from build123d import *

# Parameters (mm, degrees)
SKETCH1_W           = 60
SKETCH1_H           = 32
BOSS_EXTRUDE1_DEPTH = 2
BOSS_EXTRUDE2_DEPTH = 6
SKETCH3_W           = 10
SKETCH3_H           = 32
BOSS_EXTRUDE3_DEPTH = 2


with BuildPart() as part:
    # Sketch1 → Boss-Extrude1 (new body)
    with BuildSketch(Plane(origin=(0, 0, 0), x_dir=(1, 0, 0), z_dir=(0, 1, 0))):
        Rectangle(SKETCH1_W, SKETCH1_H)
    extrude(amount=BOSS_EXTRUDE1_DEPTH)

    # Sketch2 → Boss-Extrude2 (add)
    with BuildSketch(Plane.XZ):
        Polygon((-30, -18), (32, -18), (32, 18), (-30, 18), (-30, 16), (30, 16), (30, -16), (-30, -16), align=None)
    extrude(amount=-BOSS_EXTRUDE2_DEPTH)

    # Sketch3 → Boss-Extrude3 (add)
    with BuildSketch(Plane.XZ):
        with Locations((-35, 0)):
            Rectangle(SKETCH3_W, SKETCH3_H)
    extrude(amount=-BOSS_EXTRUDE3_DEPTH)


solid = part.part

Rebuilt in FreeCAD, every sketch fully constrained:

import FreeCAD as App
import Part
import Sketcher
Q = App.Units.Quantity

doc = App.newDocument("Part")
body = doc.addObject("PartDesign::Body", "Body")

sketch1 = body.newObject("Sketcher::SketchObject", "Sketch")
sketch1.AttachmentSupport = (doc.getObject("XZ_Plane"), [""])
sketch1.MapMode = "FlatFace"
sketch1.addGeometry(Part.LineSegment(App.Vector(-30, -16, 0), App.Vector(-30, 16, 0)), False)
sketch1.addGeometry(Part.LineSegment(App.Vector(-30, 16, 0), App.Vector(30, 16, 0)), False)
sketch1.addGeometry(Part.LineSegment(App.Vector(30, 16, 0), App.Vector(30, -16, 0)), False)
sketch1.addGeometry(Part.LineSegment(App.Vector(30, -16, 0), App.Vector(-30, -16, 0)), False)
sketch1.addConstraint(Sketcher.Constraint("Coincident", 0, 2, 1, 1))
sketch1.addConstraint(Sketcher.Constraint("Coincident", 1, 2, 2, 1))
sketch1.addConstraint(Sketcher.Constraint("Coincident", 2, 2, 3, 1))
sketch1.addConstraint(Sketcher.Constraint("Coincident", 3, 2, 0, 1))
sketch1.addConstraint(Sketcher.Constraint("Vertical", 0))
sketch1.addConstraint(Sketcher.Constraint("Horizontal", 1))
sketch1.addConstraint(Sketcher.Constraint("Vertical", 2))
sketch1.addConstraint(Sketcher.Constraint("Horizontal", 3))
sketch1.addConstraint(Sketcher.Constraint("Symmetric", 0, 2, 2, 2, -1, 1))
sketch1.addConstraint(Sketcher.Constraint("DistanceX", 1, 1, 1, 2, Q("60 mm")))
sketch1.addConstraint(Sketcher.Constraint("DistanceY", 0, 1, 0, 2, Q("32 mm")))
pad1 = body.newObject("PartDesign::Pad", "Pad")
pad1.Profile = sketch1
pad1.Length = 2
pad1.Reversed = True

sketch2 = body.newObject("Sketcher::SketchObject", "Sketch001")
sketch2.AttachmentSupport = (doc.getObject("XZ_Plane"), [""])
sketch2.MapMode = "FlatFace"
sketch2.addGeometry(Part.LineSegment(App.Vector(-30, -18, 0), App.Vector(32, -18, 0)), False)
sketch2.addGeometry(Part.LineSegment(App.Vector(32, -18, 0), App.Vector(32, 18, 0)), False)
sketch2.addGeometry(Part.LineSegment(App.Vector(32, 18, 0), App.Vector(-30, 18, 0)), False)
sketch2.addGeometry(Part.LineSegment(App.Vector(-30, 18, 0), App.Vector(-30, 16, 0)), False)
sketch2.addGeometry(Part.LineSegment(App.Vector(-30, 16, 0), App.Vector(30, 16, 0)), False)
sketch2.addGeometry(Part.LineSegment(App.Vector(30, 16, 0), App.Vector(30, -16, 0)), False)
sketch2.addGeometry(Part.LineSegment(App.Vector(30, -16, 0), App.Vector(-30, -16, 0)), False)
sketch2.addGeometry(Part.LineSegment(App.Vector(-30, -16, 0), App.Vector(-30, -18, 0)), False)
sketch2.addConstraint(Sketcher.Constraint("Coincident", 0, 2, 1, 1))
sketch2.addConstraint(Sketcher.Constraint("Coincident", 1, 2, 2, 1))
sketch2.addConstraint(Sketcher.Constraint("Coincident", 2, 2, 3, 1))
sketch2.addConstraint(Sketcher.Constraint("Coincident", 3, 2, 4, 1))
sketch2.addConstraint(Sketcher.Constraint("Coincident", 4, 2, 5, 1))
sketch2.addConstraint(Sketcher.Constraint("Coincident", 5, 2, 6, 1))
sketch2.addConstraint(Sketcher.Constraint("Coincident", 6, 2, 7, 1))
sketch2.addConstraint(Sketcher.Constraint("Coincident", 7, 2, 0, 1))
sketch2.addConstraint(Sketcher.Constraint("Horizontal", 0))
sketch2.addConstraint(Sketcher.Constraint("Vertical", 1))
sketch2.addConstraint(Sketcher.Constraint("Horizontal", 2))
sketch2.addConstraint(Sketcher.Constraint("Vertical", 3))
sketch2.addConstraint(Sketcher.Constraint("Horizontal", 4))
sketch2.addConstraint(Sketcher.Constraint("Vertical", 5))
sketch2.addConstraint(Sketcher.Constraint("Horizontal", 6))
sketch2.addConstraint(Sketcher.Constraint("Vertical", 7))
sketch2.addConstraint(Sketcher.Constraint("Symmetric", 3, 2, 5, 2, -1, 1))
sketch2.addConstraint(Sketcher.Constraint("Symmetric", 2, 2, 7, 2, -1))
sketch2.addConstraint(Sketcher.Constraint("DistanceX", 0, 1, 0, 2, Q("62 mm")))
sketch2.addConstraint(Sketcher.Constraint("DistanceX", 4, 1, 4, 2, Q("60 mm")))
sketch2.addConstraint(Sketcher.Constraint("DistanceY", 1, 1, 1, 2, Q("36 mm")))
sketch2.addConstraint(Sketcher.Constraint("DistanceY", 3, 2, 3, 1, Q("2 mm")))
pad2 = body.newObject("PartDesign::Pad", "Pad001")
pad2.Profile = sketch2
pad2.Length = 6
pad2.Reversed = True

sketch3 = body.newObject("Sketcher::SketchObject", "Sketch002")
sketch3.AttachmentSupport = (doc.getObject("XZ_Plane"), [""])
sketch3.MapMode = "FlatFace"
sketch3.addGeometry(Part.LineSegment(App.Vector(-40, 16, 0), App.Vector(-40, -16, 0)), False)
sketch3.addGeometry(Part.LineSegment(App.Vector(-40, -16, 0), App.Vector(-30, -16, 0)), False)
sketch3.addGeometry(Part.LineSegment(App.Vector(-30, -16, 0), App.Vector(-30, 16, 0)), False)
sketch3.addGeometry(Part.LineSegment(App.Vector(-30, 16, 0), App.Vector(-40, 16, 0)), False)
sketch3.addConstraint(Sketcher.Constraint("Coincident", 0, 2, 1, 1))
sketch3.addConstraint(Sketcher.Constraint("Coincident", 1, 2, 2, 1))
sketch3.addConstraint(Sketcher.Constraint("Coincident", 2, 2, 3, 1))
sketch3.addConstraint(Sketcher.Constraint("Coincident", 3, 2, 0, 1))
sketch3.addConstraint(Sketcher.Constraint("Vertical", 0))
sketch3.addConstraint(Sketcher.Constraint("Horizontal", 1))
sketch3.addConstraint(Sketcher.Constraint("Vertical", 2))
sketch3.addConstraint(Sketcher.Constraint("Horizontal", 3))
sketch3.addConstraint(Sketcher.Constraint("DistanceX", 1, 1, 1, 2, Q("10 mm")))
sketch3.addConstraint(Sketcher.Constraint("DistanceY", 0, 2, 0, 1, Q("32 mm")))
sketch3.addConstraint(Sketcher.Constraint("DistanceX", 0, 2, -1, 1, Q("40 mm")))
sketch3.addConstraint(Sketcher.Constraint("DistanceY", 0, 2, -1, 1, Q("16 mm")))
pad3 = body.newObject("PartDesign::Pad", "Pad002")
pad3.Profile = sketch3
pad3.Length = 2
pad3.Reversed = True

doc.recompute()
